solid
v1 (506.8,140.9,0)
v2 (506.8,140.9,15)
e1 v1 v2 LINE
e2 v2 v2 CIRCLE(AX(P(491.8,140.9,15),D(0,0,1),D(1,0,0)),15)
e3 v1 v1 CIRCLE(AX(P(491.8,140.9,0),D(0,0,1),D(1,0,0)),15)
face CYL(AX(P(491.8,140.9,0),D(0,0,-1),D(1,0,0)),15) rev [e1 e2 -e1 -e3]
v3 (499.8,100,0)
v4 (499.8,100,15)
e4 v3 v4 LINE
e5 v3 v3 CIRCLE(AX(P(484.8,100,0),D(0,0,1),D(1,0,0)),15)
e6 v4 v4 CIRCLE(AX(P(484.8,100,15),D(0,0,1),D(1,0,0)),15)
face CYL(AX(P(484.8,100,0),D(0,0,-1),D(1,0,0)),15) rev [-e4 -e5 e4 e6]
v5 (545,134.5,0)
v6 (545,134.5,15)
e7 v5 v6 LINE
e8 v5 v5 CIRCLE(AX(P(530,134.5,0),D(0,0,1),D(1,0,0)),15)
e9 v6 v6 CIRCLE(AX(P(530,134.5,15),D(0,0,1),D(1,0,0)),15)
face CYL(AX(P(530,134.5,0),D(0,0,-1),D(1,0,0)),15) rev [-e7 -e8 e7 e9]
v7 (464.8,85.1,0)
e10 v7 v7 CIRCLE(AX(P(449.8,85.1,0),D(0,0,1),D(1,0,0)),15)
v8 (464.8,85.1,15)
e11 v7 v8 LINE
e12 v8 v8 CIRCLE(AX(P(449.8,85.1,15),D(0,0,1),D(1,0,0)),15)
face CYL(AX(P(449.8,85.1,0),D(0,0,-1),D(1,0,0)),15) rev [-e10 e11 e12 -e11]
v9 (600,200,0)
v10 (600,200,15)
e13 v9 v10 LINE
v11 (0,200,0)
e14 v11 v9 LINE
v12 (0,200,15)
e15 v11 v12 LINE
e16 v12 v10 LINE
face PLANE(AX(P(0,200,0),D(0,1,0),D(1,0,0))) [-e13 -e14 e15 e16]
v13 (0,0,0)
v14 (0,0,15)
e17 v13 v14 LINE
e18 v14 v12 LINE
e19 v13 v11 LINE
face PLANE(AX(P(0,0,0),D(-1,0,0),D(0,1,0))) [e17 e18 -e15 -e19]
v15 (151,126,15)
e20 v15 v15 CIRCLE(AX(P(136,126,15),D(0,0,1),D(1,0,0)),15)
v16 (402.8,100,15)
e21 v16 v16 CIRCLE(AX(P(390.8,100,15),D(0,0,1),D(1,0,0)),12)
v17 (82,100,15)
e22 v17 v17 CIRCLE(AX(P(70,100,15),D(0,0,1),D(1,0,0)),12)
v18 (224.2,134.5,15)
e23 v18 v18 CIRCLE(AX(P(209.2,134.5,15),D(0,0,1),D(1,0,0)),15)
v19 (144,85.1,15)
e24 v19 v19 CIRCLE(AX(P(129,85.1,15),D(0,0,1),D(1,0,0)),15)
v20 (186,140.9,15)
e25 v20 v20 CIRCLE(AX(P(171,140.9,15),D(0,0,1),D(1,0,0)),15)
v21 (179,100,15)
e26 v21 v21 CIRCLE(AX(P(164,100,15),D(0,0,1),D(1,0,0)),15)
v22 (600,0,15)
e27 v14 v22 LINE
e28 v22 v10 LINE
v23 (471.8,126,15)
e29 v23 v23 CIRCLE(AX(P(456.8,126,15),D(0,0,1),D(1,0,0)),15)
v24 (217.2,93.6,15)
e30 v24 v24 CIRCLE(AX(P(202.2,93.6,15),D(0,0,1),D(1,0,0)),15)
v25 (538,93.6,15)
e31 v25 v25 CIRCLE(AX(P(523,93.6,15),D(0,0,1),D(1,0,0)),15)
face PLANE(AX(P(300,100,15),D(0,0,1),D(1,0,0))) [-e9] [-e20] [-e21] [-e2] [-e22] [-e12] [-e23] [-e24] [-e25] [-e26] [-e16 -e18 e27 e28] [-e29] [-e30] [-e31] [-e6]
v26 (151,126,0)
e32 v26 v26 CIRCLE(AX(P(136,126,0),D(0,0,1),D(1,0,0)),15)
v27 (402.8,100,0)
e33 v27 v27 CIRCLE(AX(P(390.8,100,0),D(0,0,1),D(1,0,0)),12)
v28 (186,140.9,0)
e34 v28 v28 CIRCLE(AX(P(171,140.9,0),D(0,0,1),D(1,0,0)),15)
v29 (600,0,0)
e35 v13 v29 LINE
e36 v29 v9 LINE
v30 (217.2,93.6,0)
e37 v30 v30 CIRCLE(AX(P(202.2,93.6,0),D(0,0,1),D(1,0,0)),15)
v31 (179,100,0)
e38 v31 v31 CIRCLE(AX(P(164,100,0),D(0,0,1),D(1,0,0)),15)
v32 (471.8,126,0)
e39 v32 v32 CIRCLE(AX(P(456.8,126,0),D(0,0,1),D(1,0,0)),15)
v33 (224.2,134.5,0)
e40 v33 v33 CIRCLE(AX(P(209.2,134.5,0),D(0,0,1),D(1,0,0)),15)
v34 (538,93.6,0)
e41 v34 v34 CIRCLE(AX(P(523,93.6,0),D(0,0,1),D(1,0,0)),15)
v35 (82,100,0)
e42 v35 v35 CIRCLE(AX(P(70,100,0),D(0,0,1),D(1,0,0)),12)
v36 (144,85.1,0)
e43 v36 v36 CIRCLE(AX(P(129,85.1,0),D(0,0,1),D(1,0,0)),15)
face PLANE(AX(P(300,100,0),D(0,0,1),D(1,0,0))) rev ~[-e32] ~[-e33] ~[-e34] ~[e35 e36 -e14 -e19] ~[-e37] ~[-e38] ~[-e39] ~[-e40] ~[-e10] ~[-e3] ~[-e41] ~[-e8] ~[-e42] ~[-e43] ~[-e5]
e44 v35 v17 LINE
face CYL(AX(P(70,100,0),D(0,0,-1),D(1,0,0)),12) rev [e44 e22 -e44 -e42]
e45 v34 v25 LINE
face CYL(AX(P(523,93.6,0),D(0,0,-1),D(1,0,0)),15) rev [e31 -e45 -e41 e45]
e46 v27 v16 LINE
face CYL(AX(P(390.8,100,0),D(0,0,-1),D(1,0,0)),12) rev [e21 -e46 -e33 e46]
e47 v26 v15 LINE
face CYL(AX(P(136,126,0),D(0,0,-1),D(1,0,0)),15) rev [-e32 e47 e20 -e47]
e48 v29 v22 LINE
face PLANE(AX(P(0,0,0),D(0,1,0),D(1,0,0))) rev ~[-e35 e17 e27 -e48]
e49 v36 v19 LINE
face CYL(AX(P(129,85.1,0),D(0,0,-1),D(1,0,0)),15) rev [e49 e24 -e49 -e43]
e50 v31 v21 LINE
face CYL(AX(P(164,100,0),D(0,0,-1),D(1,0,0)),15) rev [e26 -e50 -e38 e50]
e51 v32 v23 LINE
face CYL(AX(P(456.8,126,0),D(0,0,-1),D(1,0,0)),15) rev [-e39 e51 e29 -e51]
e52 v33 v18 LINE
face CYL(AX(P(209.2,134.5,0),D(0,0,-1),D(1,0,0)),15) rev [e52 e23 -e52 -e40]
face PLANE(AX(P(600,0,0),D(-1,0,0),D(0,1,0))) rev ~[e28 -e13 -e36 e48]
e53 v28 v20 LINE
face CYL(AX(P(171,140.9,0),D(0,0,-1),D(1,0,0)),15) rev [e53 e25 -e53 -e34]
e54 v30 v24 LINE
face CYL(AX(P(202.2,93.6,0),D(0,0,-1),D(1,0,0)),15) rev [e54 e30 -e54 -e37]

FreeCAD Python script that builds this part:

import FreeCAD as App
import Part
import Sketcher

V = App.Vector
Q = App.Units.Quantity

doc = App.newDocument("Part")
body = doc.addObject("PartDesign::Body", "Body")

# Sketch on XY plane
sketch1 = body.newObject("Sketcher::SketchObject", "Sketch")
sketch1.AttachmentSupport = (doc.getObject("XY_Plane"), [""])
sketch1.MapMode = "FlatFace"
sketch1.addGeometry([
    Part.LineSegment(V(0, 200, 0), V(0, 0, 0)),  # 0
    Part.LineSegment(V(0, 0, 0), V(600, 0, 0)),  # 1
    Part.LineSegment(V(600, 0, 0), V(600, 200, 0)),  # 2
    Part.LineSegment(V(600, 200, 0), V(0, 200, 0)),  # 3
    Part.Circle(V(129, 85, 0), V(0, 0, 1), 15),  # 4
    Part.Circle(V(70, 100, 0), V(0, 0, 1), 12),  # 5
    Part.Circle(V(164, 100, 0), V(0, 0, 1), 15),  # 6
    Part.Circle(V(202, 94, 0), V(0, 0, 1), 15),  # 7
    Part.Circle(V(450, 85, 0), V(0, 0, 1), 15),  # 8
    Part.Circle(V(391, 100, 0), V(0, 0, 1), 12),  # 9
    Part.Circle(V(523, 94, 0), V(0, 0, 1), 15),  # 10
    Part.Circle(V(485, 100, 0), V(0, 0, 1), 15),  # 11
    Part.Circle(V(136, 126, 0), V(0, 0, 1), 15),  # 12
    Part.Circle(V(171, 141, 0), V(0, 0, 1), 15),  # 13
    Part.Circle(V(209, 134, 0), V(0, 0, 1), 15),  # 14
    Part.Circle(V(457, 126, 0), V(0, 0, 1), 15),  # 15
    Part.Circle(V(530, 134, 0), V(0, 0, 1), 15),  # 16
    Part.Circle(V(492, 141, 0), V(0, 0, 1), 15),  # 17
], False)
sketch1.addConstraint([
    Sketcher.Constraint("Coincident", 0, 2, 1, 1),
    Sketcher.Constraint("Coincident", 1, 2, 2, 1),
    Sketcher.Constraint("Coincident", 2, 2, 3, 1),
    Sketcher.Constraint("Coincident", 3, 2, 0, 1),
    Sketcher.Constraint("Vertical", 0),
    Sketcher.Constraint("Horizontal", 1),
    Sketcher.Constraint("Vertical", 2),
    Sketcher.Constraint("Horizontal", 3),
    Sketcher.Constraint("Coincident", 0, 2, -1, 1),
    Sketcher.Constraint("Equal", 4, 6),
    Sketcher.Constraint("Equal", 6, 7),
    Sketcher.Constraint("Equal", 7, 8),
    Sketcher.Constraint("Equal", 5, 9),
    Sketcher.Constraint("Equal", 8, 10),
    Sketcher.Constraint("Equal", 10, 11),
    Sketcher.Constraint("Equal", 11, 12),
    Sketcher.Constraint("Equal", 12, 13),
    Sketcher.Constraint("Equal", 13, 14),
    Sketcher.Constraint("Equal", 14, 15),
    Sketcher.Constraint("Equal", 15, 16),
    Sketcher.Constraint("Equal", 16, 17),
    Sketcher.Constraint("Horizontal", 5, 3, 6, 3),
    Sketcher.Constraint("Horizontal", 4, 3, 8, 3),
    Sketcher.Constraint("Horizontal", 6, 3, 9, 3),
    Sketcher.Constraint("Horizontal", 7, 3, 10, 3),
    Sketcher.Constraint("Horizontal", 9, 3, 11, 3),
    Sketcher.Constraint("Horizontal", 12, 3, 15, 3),
    Sketcher.Constraint("Horizontal", 14, 3, 16, 3),
    Sketcher.Constraint("Horizontal", 13, 3, 17, 3),
    Sketcher.Constraint("Diameter", 4, Q("30 mm")),
    Sketcher.Constraint("Diameter", 5, Q("24 mm")),
    Sketcher.Constraint("DistanceX", 1, 1, 1, 2, Q("600 mm")),
    Sketcher.Constraint("DistanceY", 0, 2, 0, 1, Q("200 mm")),
    Sketcher.Constraint("DistanceX", -1, 1, 4, 3, Q("129 mm")),
    Sketcher.Constraint("DistanceX", -1, 1, 5, 3, Q("70 mm")),
    Sketcher.Constraint("DistanceY", -1, 1, 5, 3, Q("100 mm")),
    Sketcher.Constraint("DistanceX", -1, 1, 6, 3, Q("164 mm")),
    Sketcher.Constraint("DistanceX", -1, 1, 10, 3, Q("523 mm")),
    Sketcher.Constraint("DistanceX", -1, 1, 12, 3, Q("136 mm")),
    Sketcher.Constraint("DistanceY", -1, 1, 12, 3, Q("126 mm")),
    Sketcher.Constraint("DistanceX", -1, 1, 13, 3, Q("171 mm")),
    Sketcher.Constraint("DistanceX", -1, 1, 16, 3, Q("530 mm")),
    Sketcher.Constraint("DistanceX", 9, 3, 8, 3, Q("59 mm")),
    Sketcher.Constraint("DistanceX", 8, 3, 11, 3, Q("35 mm")),
    Sketcher.Constraint("DistanceX", 7, 3, 14, 3, Q("7 mm")),
    Sketcher.Constraint("DistanceX", 15, 3, 11, 3, Q("28 mm")),
    Sketcher.Constraint("DistanceX", 15, 3, 17, 3, Q("35 mm")),
    Sketcher.Constraint("DistanceY", -1, 1, 4, 3, Q("85.1 mm")),
    Sketcher.Constraint("DistanceX", -1, 1, 7, 3, Q("202.2 mm")),
    Sketcher.Constraint("DistanceY", -1, 1, 7, 3, Q("93.6 mm")),
    Sketcher.Constraint("DistanceX", -1, 1, 8, 3, Q("449.8 mm")),
    Sketcher.Constraint("DistanceY", -1, 1, 13, 3, Q("140.9 mm")),
    Sketcher.Constraint("DistanceY", -1, 1, 14, 3, Q("134.5 mm")),
])
pad1 = body.newObject("PartDesign::Pad", "Pad")
pad1.Profile = sketch1
pad1.Length = 15

doc.recompute()
